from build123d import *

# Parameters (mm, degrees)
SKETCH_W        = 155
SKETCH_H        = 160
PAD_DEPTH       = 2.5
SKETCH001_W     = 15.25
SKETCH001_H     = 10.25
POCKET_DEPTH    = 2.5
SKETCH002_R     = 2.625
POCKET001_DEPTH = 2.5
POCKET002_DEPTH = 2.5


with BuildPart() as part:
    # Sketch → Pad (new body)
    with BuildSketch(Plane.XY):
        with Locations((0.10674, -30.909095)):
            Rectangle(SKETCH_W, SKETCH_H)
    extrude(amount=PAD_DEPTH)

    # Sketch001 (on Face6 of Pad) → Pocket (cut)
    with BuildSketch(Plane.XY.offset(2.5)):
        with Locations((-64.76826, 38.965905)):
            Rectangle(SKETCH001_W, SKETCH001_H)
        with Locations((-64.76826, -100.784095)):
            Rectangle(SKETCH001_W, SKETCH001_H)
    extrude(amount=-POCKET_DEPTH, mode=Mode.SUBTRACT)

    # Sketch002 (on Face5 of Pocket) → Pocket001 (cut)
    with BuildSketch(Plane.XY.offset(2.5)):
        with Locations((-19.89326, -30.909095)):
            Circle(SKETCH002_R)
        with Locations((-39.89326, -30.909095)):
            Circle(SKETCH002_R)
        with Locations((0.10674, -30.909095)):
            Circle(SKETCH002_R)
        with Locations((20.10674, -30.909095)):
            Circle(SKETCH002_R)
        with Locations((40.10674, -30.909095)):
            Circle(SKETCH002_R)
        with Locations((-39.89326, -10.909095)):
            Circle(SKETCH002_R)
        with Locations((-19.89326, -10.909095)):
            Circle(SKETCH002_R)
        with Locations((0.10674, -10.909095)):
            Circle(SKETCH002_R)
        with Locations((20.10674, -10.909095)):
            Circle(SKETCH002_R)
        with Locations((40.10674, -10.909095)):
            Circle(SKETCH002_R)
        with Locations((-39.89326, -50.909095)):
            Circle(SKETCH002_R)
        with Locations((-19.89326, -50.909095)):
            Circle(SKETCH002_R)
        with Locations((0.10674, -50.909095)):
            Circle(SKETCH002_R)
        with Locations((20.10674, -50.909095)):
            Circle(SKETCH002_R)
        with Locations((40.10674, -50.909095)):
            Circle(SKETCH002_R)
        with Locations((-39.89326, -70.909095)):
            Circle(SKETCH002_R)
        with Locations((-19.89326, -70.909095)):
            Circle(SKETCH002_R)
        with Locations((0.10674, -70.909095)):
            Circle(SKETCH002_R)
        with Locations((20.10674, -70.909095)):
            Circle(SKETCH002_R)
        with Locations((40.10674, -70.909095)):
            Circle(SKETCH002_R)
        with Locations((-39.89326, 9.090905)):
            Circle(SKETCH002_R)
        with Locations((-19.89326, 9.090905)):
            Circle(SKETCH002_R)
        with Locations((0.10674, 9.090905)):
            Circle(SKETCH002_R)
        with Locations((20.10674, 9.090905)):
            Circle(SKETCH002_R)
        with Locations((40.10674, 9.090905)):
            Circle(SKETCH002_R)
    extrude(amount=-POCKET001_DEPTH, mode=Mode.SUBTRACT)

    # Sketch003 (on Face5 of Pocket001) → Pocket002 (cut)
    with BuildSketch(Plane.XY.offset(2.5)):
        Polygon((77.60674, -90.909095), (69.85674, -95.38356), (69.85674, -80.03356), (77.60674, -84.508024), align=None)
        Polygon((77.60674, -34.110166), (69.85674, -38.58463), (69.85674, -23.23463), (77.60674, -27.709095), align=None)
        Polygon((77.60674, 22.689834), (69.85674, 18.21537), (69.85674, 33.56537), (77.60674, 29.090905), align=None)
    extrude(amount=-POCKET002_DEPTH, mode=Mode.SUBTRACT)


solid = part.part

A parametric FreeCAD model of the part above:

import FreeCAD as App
import Part
import Sketcher
Q = App.Units.Quantity


def add_polygon(sketch, points):
    """Adds a closed chain of lines whose ends are joined by coincident constraints."""
    first, n = sketch.GeometryCount, len(points)
    for a, b in zip(points, points[1:] + points[:1]):
        sketch.addGeometry(Part.LineSegment(App.Vector(*a, 0), App.Vector(*b, 0)), False)
    for i in range(n):
        sketch.addConstraint(Sketcher.Constraint("Coincident", first + i, 2, first + (i + 1) % n, 1))

doc = App.newDocument("Part")
body = doc.addObject("PartDesign::Body", "Body")

sketch1 = body.newObject("Sketcher::SketchObject", "Sketch")
sketch1.AttachmentSupport = (doc.getObject("XY_Plane"), [""])
sketch1.MapMode = "FlatFace"
add_polygon(sketch1, [(-77, 49), (-77, -111), (78, -111), (78, 49)])
sketch1.addConstraint(Sketcher.Constraint("Vertical", 0))
sketch1.addConstraint(Sketcher.Constraint("Horizontal", 1))
sketch1.addConstraint(Sketcher.Constraint("Vertical", 2))
sketch1.addConstraint(Sketcher.Constraint("Horizontal", 3))
sketch1.addConstraint(Sketcher.Constraint("DistanceX", 1, 1, 1, 2, Q("155 mm")))
sketch1.addConstraint(Sketcher.Constraint("DistanceY", 0, 2, 0, 1, Q("160 mm")))
sketch1.addConstraint(Sketcher.Constraint("DistanceX", 0, 2, -1, 1, Q("77.39326 mm")))
sketch1.addConstraint(Sketcher.Constraint("DistanceY", 0, 2, -1, 1, Q("110.909095 mm")))
pad1 = body.newObject("PartDesign::Pad", "Pad")
pad1.Profile = sketch1
pad1.Length = 2.5

sketch2 = body.newObject("Sketcher::SketchObject", "Sketch001")
sketch2.AttachmentSupport = (doc.getObject("XY_Plane"), [""])
sketch2.MapMode = "FlatFace"
sketch2.AttachmentOffset = App.Placement(App.Vector(0, 0, 2.5), App.Rotation())
add_polygon(sketch2, [(-72, 44), (-72, 34), (-57, 34), (-57, 44)])
add_polygon(sketch2, [(-72, -96), (-72, -106), (-57, -106), (-57, -96)])
sketch2.addConstraint(Sketcher.Constraint("Vertical", 0))
sketch2.addConstraint(Sketcher.Constraint("Horizontal", 1))
sketch2.addConstraint(Sketcher.Constraint("Vertical", 2))
sketch2.addConstraint(Sketcher.Constraint("Horizontal", 3))
sketch2.addConstraint(Sketcher.Constraint("Vertical", 4))
sketch2.addConstraint(Sketcher.Constraint("Horizontal", 5))
sketch2.addConstraint(Sketcher.Constraint("Vertical", 6))
sketch2.addConstraint(Sketcher.Constraint("Horizontal", 7))
sketch2.addConstraint(Sketcher.Constraint("Vertical", 3, 2, 4, 2))
sketch2.addConstraint(Sketcher.Constraint("Vertical", 2, 2, 5, 2))
sketch2.addConstraint(Sketcher.Constraint("Equal", 2, 4))
sketch2.addConstraint(Sketcher.Constraint("DistanceY", 4, 2, 3, 2, Q("150 mm")))
sketch2.addConstraint(Sketcher.Constraint("DistanceX", 1, 1, 1, 2, Q("15.25 mm")))
sketch2.addConstraint(Sketcher.Constraint("DistanceY", 0, 2, 0, 1, Q("10.25 mm")))
sketch2.addConstraint(Sketcher.Constraint("DistanceX", 0, 2, -1, 1, Q("72.39326 mm")))
sketch2.addConstraint(Sketcher.Constraint("DistanceY", -1, 1, 0, 2, Q("33.840905 mm")))
pocket1 = body.newObject("PartDesign::Pocket", "Pocket")
pocket1.Profile = sketch2
pocket1.Length = 2.5

sketch3 = body.newObject("Sketcher::SketchObject", "Sketch002")
sketch3.AttachmentSupport = (doc.getObject("XY_Plane"), [""])
sketch3.MapMode = "FlatFace"
sketch3.AttachmentOffset = App.Placement(App.Vector(0, 0, 2.5), App.Rotation())
sketch3.addGeometry(Part.Circle(App.Vector(-19.9, -30.9, 0), App.Vector(0, 0, 1), 2.6), False)
sketch3.addGeometry(Part.Circle(App.Vector(-39.9, -30.9, 0), App.Vector(0, 0, 1), 2.6), False)
sketch3.addGeometry(Part.Circle(App.Vector(0.1, -30.9, 0), App.Vector(0, 0, 1), 2.6), False)
sketch3.addGeometry(Part.Circle(App.Vector(20.1, -30.9, 0), App.Vector(0, 0, 1), 2.6), False)
sketch3.addGeometry(Part.Circle(App.Vector(40.1, -30.9, 0), App.Vector(0, 0, 1), 2.6), False)
sketch3.addGeometry(Part.Circle(App.Vector(-39.9, -10.9, 0), App.Vector(0, 0, 1), 2.6), False)
sketch3.addGeometry(Part.Circle(App.Vector(-19.9, -10.9, 0), App.Vector(0, 0, 1), 2.6), False)
sketch3.addGeometry(Part.Circle(App.Vector(0.1, -10.9, 0), App.Vector(0, 0, 1), 2.6), False)
sketch3.addGeometry(Part.Circle(App.Vector(20.1, -10.9, 0), App.Vector(0, 0, 1), 2.6), False)
sketch3.addGeometry(Part.Circle(App.Vector(40.1, -10.9, 0), App.Vector(0, 0, 1), 2.6), False)
sketch3.addGeometry(Part.Circle(App.Vector(-39.9, -50.9, 0), App.Vector(0, 0, 1), 2.6), False)
sketch3.addGeometry(Part.Circle(App.Vector(-19.9, -50.9, 0), App.Vector(0, 0, 1), 2.6), False)
sketch3.addGeometry(Part.Circle(App.Vector(0.1, -50.9, 0), App.Vector(0, 0, 1), 2.6), False)
sketch3.addGeometry(Part.Circle(App.Vector(20.1, -50.9, 0), App.Vector(0, 0, 1), 2.6), False)
sketch3.addGeometry(Part.Circle(App.Vector(40.1, -50.9, 0), App.Vector(0, 0, 1), 2.6), False)
sketch3.addGeometry(Part.Circle(App.Vector(-39.9, -70.9, 0), App.Vector(0, 0, 1), 2.6), False)
sketch3.addGeometry(Part.Circle(App.Vector(-19.9, -70.9, 0), App.Vector(0, 0, 1), 2.6), False)
sketch3.addGeometry(Part.Circle(App.Vector(0.1, -70.9, 0), App.Vector(0, 0, 1), 2.6), False)
sketch3.addGeometry(Part.Circle(App.Vector(20.1, -70.9, 0), App.Vector(0, 0, 1), 2.6), False)
sketch3.addGeometry(Part.Circle(App.Vector(40.1, -70.9, 0), App.Vector(0, 0, 1), 2.6), False)
sketch3.addGeometry(Part.Circle(App.Vector(-39.9, 9.1, 0), App.Vector(0, 0, 1), 2.6), False)
sketch3.addGeometry(Part.Circle(App.Vector(-19.9, 9.1, 0), App.Vector(0, 0, 1), 2.6), False)
sketch3.addGeometry(Part.Circle(App.Vector(0.1, 9.1, 0), App.Vector(0, 0, 1), 2.6), False)
sketch3.addGeometry(Part.Circle(App.Vector(20.1, 9.1, 0), App.Vector(0, 0, 1), 2.6), False)
sketch3.addGeometry(Part.Circle(App.Vector(40.1, 9.1, 0), App.Vector(0, 0, 1), 2.6), False)
sketch3.addConstraint(Sketcher.Constraint("Equal", 0, 1))
sketch3.addConstraint(Sketcher.Constraint("Equal", 1, 2))
sketch3.addConstraint(Sketcher.Constraint("Equal", 2, 3))
sketch3.addConstraint(Sketcher.Constraint("Equal", 3, 4))
sketch3.addConstraint(Sketcher.Constraint("Equal", 4, 5))
sketch3.addConstraint(Sketcher.Constraint("Equal", 5, 6))
sketch3.addConstraint(Sketcher.Constraint("Equal", 6, 7))
sketch3.addConstraint(Sketcher.Constraint("Equal", 7, 8))
sketch3.addConstraint(Sketcher.Constraint("Equal", 8, 9))
sketch3.addConstraint(Sketcher.Constraint("Equal", 9, 10))
sketch3.addConstraint(Sketcher.Constraint("Equal", 10, 11))
sketch3.addConstraint(Sketcher.Constraint("Equal", 11, 12))
sketch3.addConstraint(Sketcher.Constraint("Equal", 12, 13))
sketch3.addConstraint(Sketcher.Constraint("Equal", 13, 14))
sketch3.addConstraint(Sketcher.Constraint("Equal", 14, 15))
sketch3.addConstraint(Sketcher.Constraint("Equal", 15, 16))
sketch3.addConstraint(Sketcher.Constraint("Equal", 16, 17))
sketch3.addConstraint(Sketcher.Constraint("Equal", 17, 18))
sketch3.addConstraint(Sketcher.Constraint("Equal", 18, 19))
sketch3.addConstraint(Sketcher.Constraint("Equal", 19, 20))
sketch3.addConstraint(Sketcher.Constraint("Equal", 20, 21))
sketch3.addConstraint(Sketcher.Constraint("Equal", 21, 22))
sketch3.addConstraint(Sketcher.Constraint("Equal", 22, 23))
sketch3.addConstraint(Sketcher.Constraint("Equal", 23, 24))
sketch3.addConstraint(Sketcher.Constraint("Horizontal", 0, 3, 1, 3))
sketch3.addConstraint(Sketcher.Constraint("Horizontal", 1, 3, 2, 3))
sketch3.addConstraint(Sketcher.Constraint("Horizontal", 2, 3, 3, 3))
sketch3.addConstraint(Sketcher.Constraint("Horizontal", 3, 3, 4, 3))
sketch3.addConstraint(Sketcher.Constraint("Horizontal", 5, 3, 6, 3))
sketch3.addConstraint(Sketcher.Constraint("Horizontal", 6, 3, 7, 3))
sketch3.addConstraint(Sketcher.Constraint("Horizontal", 7, 3, 8, 3))
sketch3.addConstraint(Sketcher.Constraint("Horizontal", 8, 3, 9, 3))
sketch3.addConstraint(Sketcher.Constraint("Horizontal", 10, 3, 11, 3))
sketch3.addConstraint(Sketcher.Constraint("Horizontal", 11, 3, 12, 3))
sketch3.addConstraint(Sketcher.Constraint("Horizontal", 12, 3, 13, 3))
sketch3.addConstraint(Sketcher.Constraint("Horizontal", 13, 3, 14, 3))
sketch3.addConstraint(Sketcher.Constraint("Horizontal", 15, 3, 16, 3))
sketch3.addConstraint(Sketcher.Constraint("Horizontal", 16, 3, 17, 3))
sketch3.addConstraint(Sketcher.Constraint("Horizontal", 17, 3, 18, 3))
sketch3.addConstraint(Sketcher.Constraint("Horizontal", 18, 3, 19, 3))
sketch3.addConstraint(Sketcher.Constraint("Horizontal", 20, 3, 21, 3))
sketch3.addConstraint(Sketcher.Constraint("Horizontal", 21, 3, 22, 3))
sketch3.addConstraint(Sketcher.Constraint("Horizontal", 22, 3, 23, 3))
sketch3.addConstraint(Sketcher.Constraint("Horizontal", 23, 3, 24, 3))
sketch3.addConstraint(Sketcher.Constraint("Vertical", 1, 3, 5, 3))
sketch3.addConstraint(Sketcher.Constraint("Vertical", 0, 3, 6, 3))
sketch3.addConstraint(Sketcher.Constraint("Vertical", 2, 3, 7, 3))
sketch3.addConstraint(Sketcher.Constraint("Vertical", 3, 3, 8, 3))
sketch3.addConstraint(Sketcher.Constraint("Vertical", 4, 3, 9, 3))
sketch3.addConstraint(Sketcher.Constraint("Vertical", 5, 3, 10, 3))
sketch3.addConstraint(Sketcher.Constraint("Vertical", 6, 3, 11, 3))
sketch3.addConstraint(Sketcher.Constraint("Vertical", 7, 3, 12, 3))
sketch3.addConstraint(Sketcher.Constraint("Vertical", 8, 3, 13, 3))
sketch3.addConstraint(Sketcher.Constraint("Vertical", 9, 3, 14, 3))
sketch3.addConstraint(Sketcher.Constraint("Vertical", 10, 3, 15, 3))
sketch3.addConstraint(Sketcher.Constraint("Vertical", 11, 3, 16, 3))
sketch3.addConstraint(Sketcher.Constraint("Vertical", 12, 3, 17, 3))
sketch3.addConstraint(Sketcher.Constraint("Vertical", 13, 3, 18, 3))
sketch3.addConstraint(Sketcher.Constraint("Vertical", 14, 3, 19, 3))
sketch3.addConstraint(Sketcher.Constraint("Vertical", 15, 3, 20, 3))
sketch3.addConstraint(Sketcher.Constraint("Vertical", 16, 3, 21, 3))
sketch3.addConstraint(Sketcher.Constraint("Vertical", 17, 3, 22, 3))
sketch3.addConstraint(Sketcher.Constraint("Vertical", 18, 3, 23, 3))
sketch3.addConstraint(Sketcher.Constraint("Vertical", 19, 3, 24, 3))
sketch3.addConstraint(Sketcher.Constraint("Diameter", 0, Q("5.25 mm")))
sketch3.addConstraint(Sketcher.Constraint("DistanceX", 1, 3, 0, 3, Q("20 mm")))
sketch3.addConstraint(Sketcher.Constraint("DistanceX", 0, 3, 2, 3, Q("20 mm")))
sketch3.addConstraint(Sketcher.Constraint("DistanceX", 2, 3, 3, 3, Q("20 mm")))
sketch3.addConstraint(Sketcher.Constraint("DistanceX", 3, 3, 4, 3, Q("20 mm")))
sketch3.addConstraint(Sketcher.Constraint("DistanceY", 1, 3, 5, 3, Q("20 mm")))
sketch3.addConstraint(Sketcher.Constraint("DistanceY", 10, 3, 1, 3, Q("20 mm")))
sketch3.addConstraint(Sketcher.Constraint("DistanceY", 15, 3, 10, 3, Q("20 mm")))
sketch3.addConstraint(Sketcher.Constraint("DistanceY", 5, 3, 20, 3, Q("20 mm")))
sketch3.addConstraint(Sketcher.Constraint("DistanceX", 0, 3, -1, 1, Q("19.89326 mm")))
sketch3.addConstraint(Sketcher.Constraint("DistanceY", 0, 3, -1, 1, Q("30.909095 mm")))
pocket2 = body.newObject("PartDesign::Pocket", "Pocket001")
pocket2.Profile = sketch3
pocket2.Length = 2.5

sketch4 = body.newObject("Sketcher::SketchObject", "Sketch003")
sketch4.AttachmentSupport = (doc.getObject("XY_Plane"), [""])
sketch4.MapMode = "FlatFace"
sketch4.AttachmentOffset = App.Placement(App.Vector(0, 0, 2.5), App.Rotation())
add_polygon(sketch4, [(70, -95), (78, -91), (78, -85), (70, -80)])
add_polygon(sketch4, [(70, -39), (78, -34), (78, -28), (70, -23)])
add_polygon(sketch4, [(70, 18), (78, 23), (78, 29), (70, 34)])
sketch4.addConstraint(Sketcher.Constraint("Vertical", 1))
sketch4.addConstraint(Sketcher.Constraint("Vertical", 3))
sketch4.addConstraint(Sketcher.Constraint("Vertical", 5))
sketch4.addConstraint(Sketcher.Constraint("Vertical", 7))
sketch4.addConstraint(Sketcher.Constraint("Vertical", 9))
sketch4.addConstraint(Sketcher.Constraint("Vertical", 11))
sketch4.addConstraint(Sketcher.Constraint("Parallel", 0, 4))
sketch4.addConstraint(Sketcher.Constraint("Parallel", 2, 6))
sketch4.addConstraint(Sketcher.Constraint("Parallel", 4, 8))
sketch4.addConstraint(Sketcher.Constraint("Parallel", 6, 10))
sketch4.addConstraint(Sketcher.Constraint("Vertical", 1, 2, 4, 2))
sketch4.addConstraint(Sketcher.Constraint("Vertical", 3, 2, 6, 2))
sketch4.addConstraint(Sketcher.Constraint("Vertical", 5, 2, 8, 2))
sketch4.addConstraint(Sketcher.Constraint("Vertical", 7, 2, 10, 2))
sketch4.addConstraint(Sketcher.Constraint("Equal", 1, 5))
sketch4.addConstraint(Sketcher.Constraint("Equal", 5, 9))
sketch4.addConstraint(Sketcher.Constraint("Equal", 0, 2))
sketch4.addConstraint(Sketcher.Constraint("Angle", 0, Q("30.000002 deg")))
sketch4.addConstraint(Sketcher.Constraint("DistanceY", 3, 2, 3, 1, Q("15.35 mm")))
sketch4.addConstraint(Sketcher.Constraint("DistanceY", 0, 2, 5, 2, Q("63.2 mm")))
sketch4.addConstraint(Sketcher.Constraint("DistanceY", 4, 2, 8, 2, Q("56.8 mm")))
sketch4.addConstraint(Sketcher.Constraint("DistanceX", 2, 2, 1, 2, Q("7.75 mm")))
sketch4.addConstraint(Sketcher.Constraint("DistanceX", -1, 1, 0, 2, Q("77.60674 mm")))
sketch4.addConstraint(Sketcher.Constraint("DistanceY", 2, 2, -1, 1, Q("80.03356 mm")))
pocket3 = body.newObject("PartDesign::Pocket", "Pocket002")
pocket3.Profile = sketch4
pocket3.Length = 2.5

doc.recompute()
